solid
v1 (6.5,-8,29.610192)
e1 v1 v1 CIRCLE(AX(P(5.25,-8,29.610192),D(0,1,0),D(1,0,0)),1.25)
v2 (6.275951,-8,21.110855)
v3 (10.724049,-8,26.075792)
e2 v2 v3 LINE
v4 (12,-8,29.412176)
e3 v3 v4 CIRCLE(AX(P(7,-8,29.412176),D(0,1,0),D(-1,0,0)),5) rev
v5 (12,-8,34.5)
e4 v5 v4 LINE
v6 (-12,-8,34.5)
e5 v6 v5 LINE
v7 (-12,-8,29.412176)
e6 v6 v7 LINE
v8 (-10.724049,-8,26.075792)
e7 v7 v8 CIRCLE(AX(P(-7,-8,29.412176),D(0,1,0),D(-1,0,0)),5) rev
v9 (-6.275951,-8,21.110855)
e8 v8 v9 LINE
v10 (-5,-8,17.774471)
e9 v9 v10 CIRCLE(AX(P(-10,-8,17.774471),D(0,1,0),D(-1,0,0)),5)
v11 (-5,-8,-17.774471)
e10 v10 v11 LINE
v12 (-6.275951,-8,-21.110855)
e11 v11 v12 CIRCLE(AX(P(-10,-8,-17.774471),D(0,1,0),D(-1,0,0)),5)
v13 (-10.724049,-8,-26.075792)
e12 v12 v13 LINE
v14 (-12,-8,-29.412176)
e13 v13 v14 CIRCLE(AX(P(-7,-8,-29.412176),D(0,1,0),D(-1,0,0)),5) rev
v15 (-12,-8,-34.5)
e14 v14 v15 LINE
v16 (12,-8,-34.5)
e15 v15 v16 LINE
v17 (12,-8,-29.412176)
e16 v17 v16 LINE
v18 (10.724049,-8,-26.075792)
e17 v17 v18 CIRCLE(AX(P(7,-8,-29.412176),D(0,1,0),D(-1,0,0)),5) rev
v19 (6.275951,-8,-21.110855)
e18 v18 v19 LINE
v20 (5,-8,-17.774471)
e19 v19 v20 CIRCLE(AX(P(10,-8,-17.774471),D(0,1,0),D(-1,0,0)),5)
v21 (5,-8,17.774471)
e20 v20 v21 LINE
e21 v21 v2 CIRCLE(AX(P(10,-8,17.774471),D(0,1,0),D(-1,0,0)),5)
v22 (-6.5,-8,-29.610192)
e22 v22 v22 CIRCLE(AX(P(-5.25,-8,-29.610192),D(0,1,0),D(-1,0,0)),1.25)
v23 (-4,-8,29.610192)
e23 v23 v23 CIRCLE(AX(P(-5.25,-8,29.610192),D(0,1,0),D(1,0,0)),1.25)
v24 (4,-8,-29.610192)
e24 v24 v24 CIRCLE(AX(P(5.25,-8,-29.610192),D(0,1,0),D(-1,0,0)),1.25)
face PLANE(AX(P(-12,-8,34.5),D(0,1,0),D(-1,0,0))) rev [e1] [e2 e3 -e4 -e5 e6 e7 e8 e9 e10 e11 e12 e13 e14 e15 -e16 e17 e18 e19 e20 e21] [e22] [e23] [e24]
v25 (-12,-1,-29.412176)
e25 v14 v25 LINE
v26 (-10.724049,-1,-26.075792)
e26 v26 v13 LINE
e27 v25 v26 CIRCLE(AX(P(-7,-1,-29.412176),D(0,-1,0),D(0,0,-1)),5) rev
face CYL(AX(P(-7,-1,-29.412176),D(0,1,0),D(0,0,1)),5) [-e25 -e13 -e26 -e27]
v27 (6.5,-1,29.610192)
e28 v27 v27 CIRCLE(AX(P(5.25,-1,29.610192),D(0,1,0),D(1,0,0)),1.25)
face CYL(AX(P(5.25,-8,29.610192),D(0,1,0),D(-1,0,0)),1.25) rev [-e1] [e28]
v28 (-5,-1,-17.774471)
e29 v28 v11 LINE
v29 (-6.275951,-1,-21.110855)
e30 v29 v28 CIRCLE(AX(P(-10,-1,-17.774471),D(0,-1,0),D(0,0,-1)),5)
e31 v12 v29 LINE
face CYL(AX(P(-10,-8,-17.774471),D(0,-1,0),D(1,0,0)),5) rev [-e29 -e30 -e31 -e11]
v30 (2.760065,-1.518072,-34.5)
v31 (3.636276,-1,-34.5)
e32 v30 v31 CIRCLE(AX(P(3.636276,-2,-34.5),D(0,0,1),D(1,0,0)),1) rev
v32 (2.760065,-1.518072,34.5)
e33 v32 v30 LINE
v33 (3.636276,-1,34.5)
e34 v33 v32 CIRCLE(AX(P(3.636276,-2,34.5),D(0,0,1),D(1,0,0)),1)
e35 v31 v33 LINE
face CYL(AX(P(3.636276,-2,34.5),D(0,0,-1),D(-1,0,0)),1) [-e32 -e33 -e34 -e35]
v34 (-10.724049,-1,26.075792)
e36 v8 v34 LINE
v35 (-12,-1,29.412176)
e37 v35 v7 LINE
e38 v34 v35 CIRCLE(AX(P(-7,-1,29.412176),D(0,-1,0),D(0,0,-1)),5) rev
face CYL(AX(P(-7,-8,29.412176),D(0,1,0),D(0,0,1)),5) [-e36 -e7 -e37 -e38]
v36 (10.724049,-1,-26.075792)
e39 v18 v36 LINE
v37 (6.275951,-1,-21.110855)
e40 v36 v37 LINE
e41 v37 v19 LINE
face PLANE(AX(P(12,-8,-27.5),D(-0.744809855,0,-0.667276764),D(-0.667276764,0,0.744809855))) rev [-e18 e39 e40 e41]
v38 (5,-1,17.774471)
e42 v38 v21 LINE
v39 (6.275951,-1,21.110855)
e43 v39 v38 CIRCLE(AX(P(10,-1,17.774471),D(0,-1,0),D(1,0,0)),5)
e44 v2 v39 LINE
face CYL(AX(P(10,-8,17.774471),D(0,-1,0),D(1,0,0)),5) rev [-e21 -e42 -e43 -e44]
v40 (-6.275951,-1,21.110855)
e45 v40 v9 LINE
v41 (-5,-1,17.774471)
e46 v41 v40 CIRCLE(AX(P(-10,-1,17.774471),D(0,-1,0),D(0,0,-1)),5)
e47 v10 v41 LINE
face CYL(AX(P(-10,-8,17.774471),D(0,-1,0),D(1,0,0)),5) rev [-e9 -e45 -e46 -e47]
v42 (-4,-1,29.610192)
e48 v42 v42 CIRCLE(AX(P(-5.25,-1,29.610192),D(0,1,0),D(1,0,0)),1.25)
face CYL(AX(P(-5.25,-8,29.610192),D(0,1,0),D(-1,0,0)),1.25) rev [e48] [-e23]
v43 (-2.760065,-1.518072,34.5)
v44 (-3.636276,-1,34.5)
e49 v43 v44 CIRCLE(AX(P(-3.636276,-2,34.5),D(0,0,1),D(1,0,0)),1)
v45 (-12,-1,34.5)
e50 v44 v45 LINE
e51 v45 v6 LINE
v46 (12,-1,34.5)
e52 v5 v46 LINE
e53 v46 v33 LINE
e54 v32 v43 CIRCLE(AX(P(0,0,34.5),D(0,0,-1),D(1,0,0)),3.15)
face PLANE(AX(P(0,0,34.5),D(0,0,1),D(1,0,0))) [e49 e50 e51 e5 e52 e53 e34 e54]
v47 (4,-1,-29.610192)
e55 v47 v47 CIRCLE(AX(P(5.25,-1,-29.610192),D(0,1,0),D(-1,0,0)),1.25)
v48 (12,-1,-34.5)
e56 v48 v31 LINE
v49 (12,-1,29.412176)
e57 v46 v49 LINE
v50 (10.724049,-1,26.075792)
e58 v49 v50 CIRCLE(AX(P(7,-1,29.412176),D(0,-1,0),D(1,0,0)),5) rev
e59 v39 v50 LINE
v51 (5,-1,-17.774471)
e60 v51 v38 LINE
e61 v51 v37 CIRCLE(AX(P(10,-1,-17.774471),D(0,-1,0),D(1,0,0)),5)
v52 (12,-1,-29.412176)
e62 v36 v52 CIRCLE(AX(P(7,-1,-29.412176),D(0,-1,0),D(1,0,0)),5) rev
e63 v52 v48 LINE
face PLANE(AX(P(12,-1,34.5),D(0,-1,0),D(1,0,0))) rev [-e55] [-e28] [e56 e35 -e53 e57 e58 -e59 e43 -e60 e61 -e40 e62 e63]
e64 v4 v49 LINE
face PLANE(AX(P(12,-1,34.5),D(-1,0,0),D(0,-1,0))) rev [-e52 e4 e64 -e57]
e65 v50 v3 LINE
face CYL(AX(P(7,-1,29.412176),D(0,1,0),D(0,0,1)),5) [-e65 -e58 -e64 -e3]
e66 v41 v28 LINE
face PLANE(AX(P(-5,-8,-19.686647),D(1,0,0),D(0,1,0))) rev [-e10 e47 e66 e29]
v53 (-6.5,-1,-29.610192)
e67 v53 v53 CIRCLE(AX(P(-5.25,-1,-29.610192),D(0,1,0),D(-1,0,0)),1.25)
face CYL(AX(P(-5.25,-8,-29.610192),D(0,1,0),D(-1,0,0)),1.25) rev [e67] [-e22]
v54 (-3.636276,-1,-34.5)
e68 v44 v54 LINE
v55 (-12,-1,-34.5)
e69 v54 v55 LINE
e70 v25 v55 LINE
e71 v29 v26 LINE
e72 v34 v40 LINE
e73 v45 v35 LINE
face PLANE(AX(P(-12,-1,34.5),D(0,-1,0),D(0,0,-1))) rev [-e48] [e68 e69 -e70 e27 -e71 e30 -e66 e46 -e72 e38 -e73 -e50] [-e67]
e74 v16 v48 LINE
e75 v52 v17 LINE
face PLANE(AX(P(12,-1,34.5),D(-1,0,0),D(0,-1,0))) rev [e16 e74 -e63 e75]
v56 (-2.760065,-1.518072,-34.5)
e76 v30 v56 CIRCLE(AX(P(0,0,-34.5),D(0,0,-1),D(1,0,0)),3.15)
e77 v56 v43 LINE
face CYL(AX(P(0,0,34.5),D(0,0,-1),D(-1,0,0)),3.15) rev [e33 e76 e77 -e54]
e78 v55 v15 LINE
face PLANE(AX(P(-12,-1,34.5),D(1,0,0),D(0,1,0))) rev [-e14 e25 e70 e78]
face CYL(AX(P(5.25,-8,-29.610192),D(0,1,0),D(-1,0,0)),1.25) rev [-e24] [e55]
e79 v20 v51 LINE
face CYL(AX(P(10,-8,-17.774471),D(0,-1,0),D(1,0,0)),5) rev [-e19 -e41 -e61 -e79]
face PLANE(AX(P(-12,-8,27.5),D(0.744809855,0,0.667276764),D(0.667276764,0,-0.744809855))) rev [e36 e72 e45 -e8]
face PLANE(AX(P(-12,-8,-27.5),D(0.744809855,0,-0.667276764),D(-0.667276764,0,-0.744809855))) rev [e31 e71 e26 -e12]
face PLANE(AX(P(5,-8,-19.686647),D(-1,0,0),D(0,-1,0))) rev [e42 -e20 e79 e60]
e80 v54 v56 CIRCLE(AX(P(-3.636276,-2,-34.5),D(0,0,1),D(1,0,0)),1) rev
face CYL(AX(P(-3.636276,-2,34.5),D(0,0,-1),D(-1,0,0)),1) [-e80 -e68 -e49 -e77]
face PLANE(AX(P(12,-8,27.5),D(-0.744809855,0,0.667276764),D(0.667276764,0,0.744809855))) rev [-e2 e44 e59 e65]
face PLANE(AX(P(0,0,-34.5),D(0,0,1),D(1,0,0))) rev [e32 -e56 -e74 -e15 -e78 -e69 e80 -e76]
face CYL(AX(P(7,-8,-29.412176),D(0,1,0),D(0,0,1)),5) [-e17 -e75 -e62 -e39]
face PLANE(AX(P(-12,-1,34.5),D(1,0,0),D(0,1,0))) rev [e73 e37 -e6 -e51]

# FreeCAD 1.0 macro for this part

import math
import FreeCAD as App
import Part
import Sketcher
Q = App.Units.Quantity


def edges_at(feature, points):
    """Names of the edges that pass closest to the given points."""
    edges = feature.Shape.Edges
    near = lambda p: min(range(len(edges)), key=lambda i: edges[i].distToShape(Part.Vertex(*p))[0])
    return sorted({f"Edge{near(p) + 1}" for p in points})


def add_polygon(sketch, points):
    """Adds a closed chain of lines whose ends are joined by coincident constraints."""
    first, n = sketch.GeometryCount, len(points)
    for a, b in zip(points, points[1:] + points[:1]):
        sketch.addGeometry(Part.LineSegment(App.Vector(*a, 0), App.Vector(*b, 0)), False)
    for i in range(n):
        sketch.addConstraint(Sketcher.Constraint("Coincident", first + i, 2, first + (i + 1) % n, 1))

doc = App.newDocument("Part")
body = doc.addObject("PartDesign::Body", "Body")

sketch1 = body.newObject("Sketcher::SketchObject", "Sketch")
sketch1.AttachmentSupport = (doc.getObject("XY_Plane"), [""])
sketch1.MapMode = "FlatFace"
sketch1.addGeometry(Part.LineSegment(App.Vector(-3, -1, 0), App.Vector(-12, -1, 0)), False)
sketch1.addGeometry(Part.LineSegment(App.Vector(-12, -1, 0), App.Vector(-12, -8, 0)), False)
sketch1.addGeometry(Part.LineSegment(App.Vector(-12, -8, 0), App.Vector(12, -8, 0)), False)
sketch1.addGeometry(Part.LineSegment(App.Vector(12, -8, 0), App.Vector(12, -1, 0)), False)
sketch1.addGeometry(Part.LineSegment(App.Vector(12, -1, 0), App.Vector(3, -1, 0)), False)
sketch1.addGeometry(Part.ArcOfCircle(Part.Circle(App.Vector(0, 0, 0), App.Vector(0, 0, 1), 3.1), math.radians(-161), math.radians(-19)), False)
sketch1.addConstraint(Sketcher.Constraint("Coincident", 0, 2, 1, 1))
sketch1.addConstraint(Sketcher.Constraint("Coincident", 1, 2, 2, 1))
sketch1.addConstraint(Sketcher.Constraint("Coincident", 2, 2, 3, 1))
sketch1.addConstraint(Sketcher.Constraint("Coincident", 3, 2, 4, 1))
sketch1.addConstraint(Sketcher.Constraint("Coincident", 4, 2, 5, 2))
sketch1.addConstraint(Sketcher.Constraint("Coincident", 5, 1, 0, 1))
sketch1.addConstraint(Sketcher.Constraint("Horizontal", 0))
sketch1.addConstraint(Sketcher.Constraint("Vertical", 1))
sketch1.addConstraint(Sketcher.Constraint("Horizontal", 2))
sketch1.addConstraint(Sketcher.Constraint("Vertical", 3))
sketch1.addConstraint(Sketcher.Constraint("Horizontal", 4))
sketch1.addConstraint(Sketcher.Constraint("Coincident", 5, 3, -1, 1))
sketch1.addConstraint(Sketcher.Constraint("Symmetric", 0, 2, 3, 2, -2))
sketch1.addConstraint(Sketcher.Constraint("DistanceX", 2, 1, 2, 2, Q("24 mm")))
sketch1.addConstraint(Sketcher.Constraint("DistanceY", 1, 2, 1, 1, Q("7 mm")))
sketch1.addConstraint(Sketcher.Constraint("Radius", 5, Q("3.15 mm")))
sketch1.addConstraint(Sketcher.Constraint("DistanceY", 0, 2, -1, 1, Q("1 mm")))
pad1 = body.newObject("PartDesign::Pad", "Pad")
pad1.Profile = sketch1
pad1.Length = 69
pad1.Midplane = True
doc.recompute()

fillet = body.newObject("PartDesign::Fillet", "Fillet")
fillet.Base = (pad1, edges_at(pad1, [(-2.987, -1, 0), (2.987, -1, 0)]))
fillet.Radius = 1

sketch2 = body.newObject("Sketcher::SketchObject", "Sketch001")
sketch2.AttachmentSupport = (doc.getObject("XZ_Plane"), [""])
sketch2.MapMode = "FlatFace"
sketch2.AttachmentOffset = App.Placement(App.Vector(0, 0, 1), App.Rotation())
add_polygon(sketch2, [(-5, -20), (-12, -28), (-12, 28), (-5, 20)])
add_polygon(sketch2, [(5, 20), (12, 28), (12, -28), (5, -20)])
sketch2.addConstraint(Sketcher.Constraint("Vertical", 1))
sketch2.addConstraint(Sketcher.Constraint("Vertical", 3))
sketch2.addConstraint(Sketcher.Constraint("Vertical", 5))
sketch2.addConstraint(Sketcher.Constraint("Vertical", 7))
sketch2.addConstraint(Sketcher.Constraint("Symmetric", 0, 2, 4, 2, -1, 1))
sketch2.addConstraint(Sketcher.Constraint("Symmetric", 2, 2, 6, 2, -1, 1))
sketch2.addConstraint(Sketcher.Constraint("Parallel", 0, 4))
sketch2.addConstraint(Sketcher.Constraint("Parallel", 2, 6))
sketch2.addConstraint(Sketcher.Constraint("Horizontal", 1, 2, 4, 2))
sketch2.addConstraint(Sketcher.Constraint("Horizontal", 3, 2, 6, 2))
sketch2.addConstraint(Sketcher.Constraint("DistanceY", 1, 1, 1, 2, Q("55 mm")))
sketch2.addConstraint(Sketcher.Constraint("DistanceX", 0, 2, -1, 1, Q("12 mm")))
sketch2.addConstraint(Sketcher.Constraint("DistanceX", 2, 2, -1, 1, Q("5 mm")))
sketch2.addConstraint(Sketcher.Constraint("Distance", 0, Q("10.4904 mm")))
pocket1 = body.newObject("PartDesign::Pocket", "Pocket")
pocket1.Profile = sketch2
pocket1.Type = "ThroughAll"
pocket1.Reversed = True
doc.recompute()

fillet2 = body.newObject("PartDesign::Fillet", "Fillet001")
fillet2.Base = (pocket1, edges_at(pocket1, [
    (-12, -4.5, 27.5),
    (-12, -4.5, -27.5),
    (-5, -4.5, -19.687),
    (-5, -4.5, 19.687),
    (12, -4.5, -27.5),
    (12, -4.5, 27.5),
    (5, -4.5, 19.687),
    (5, -4.5, -19.687),
]))
fillet2.Radius = 5

sketch3 = body.newObject("Sketcher::SketchObject", "Sketch002")
sketch3.AttachmentSupport = (doc.getObject("XZ_Plane"), [""])
sketch3.MapMode = "FlatFace"
sketch3.AttachmentOffset = App.Placement(App.Vector(0, 0, 1), App.Rotation())
sketch3.addGeometry(Part.Circle(App.Vector(5.2, -29.6, 0), App.Vector(0, 0, 1), 1.2), False)
sketch3.addGeometry(Part.Circle(App.Vector(-5.2, -29.6, 0), App.Vector(0, 0, 1), 1.2), False)
sketch3.addGeometry(Part.Circle(App.Vector(-5.2, 29.6, 0), App.Vector(0, 0, 1), 1.2), False)
sketch3.addGeometry(Part.Circle(App.Vector(5.2, 29.6, 0), App.Vector(0, 0, 1), 1.2), False)
sketch3.addConstraint(Sketcher.Constraint("Equal", 0, 1))
sketch3.addConstraint(Sketcher.Constraint("Equal", 1, 2))
sketch3.addConstraint(Sketcher.Constraint("Equal", 2, 3))
sketch3.addConstraint(Sketcher.Constraint("Symmetric", 0, 3, 2, 3, -1, 1))
sketch3.addConstraint(Sketcher.Constraint("Symmetric", 1, 3, 3, 3, -1, 1))
sketch3.addConstraint(Sketcher.Constraint("Symmetric", 0, 3, 1, 3, -2))
sketch3.addConstraint(Sketcher.Constraint("Diameter", 0, Q("2.5 mm")))
sketch3.addConstraint(Sketcher.Constraint("DistanceX", 1, 3, 0, 3, Q("10.5 mm")))
sketch3.addConstraint(Sketcher.Constraint("DistanceY", 0, 3, -1, 1, Q("29.610192 mm")))
pocket2 = body.newObject("PartDesign::Pocket", "Pocket001")
pocket2.Profile = sketch3
pocket2.Type = "ThroughAll"
pocket2.Reversed = True

doc.recompute()
